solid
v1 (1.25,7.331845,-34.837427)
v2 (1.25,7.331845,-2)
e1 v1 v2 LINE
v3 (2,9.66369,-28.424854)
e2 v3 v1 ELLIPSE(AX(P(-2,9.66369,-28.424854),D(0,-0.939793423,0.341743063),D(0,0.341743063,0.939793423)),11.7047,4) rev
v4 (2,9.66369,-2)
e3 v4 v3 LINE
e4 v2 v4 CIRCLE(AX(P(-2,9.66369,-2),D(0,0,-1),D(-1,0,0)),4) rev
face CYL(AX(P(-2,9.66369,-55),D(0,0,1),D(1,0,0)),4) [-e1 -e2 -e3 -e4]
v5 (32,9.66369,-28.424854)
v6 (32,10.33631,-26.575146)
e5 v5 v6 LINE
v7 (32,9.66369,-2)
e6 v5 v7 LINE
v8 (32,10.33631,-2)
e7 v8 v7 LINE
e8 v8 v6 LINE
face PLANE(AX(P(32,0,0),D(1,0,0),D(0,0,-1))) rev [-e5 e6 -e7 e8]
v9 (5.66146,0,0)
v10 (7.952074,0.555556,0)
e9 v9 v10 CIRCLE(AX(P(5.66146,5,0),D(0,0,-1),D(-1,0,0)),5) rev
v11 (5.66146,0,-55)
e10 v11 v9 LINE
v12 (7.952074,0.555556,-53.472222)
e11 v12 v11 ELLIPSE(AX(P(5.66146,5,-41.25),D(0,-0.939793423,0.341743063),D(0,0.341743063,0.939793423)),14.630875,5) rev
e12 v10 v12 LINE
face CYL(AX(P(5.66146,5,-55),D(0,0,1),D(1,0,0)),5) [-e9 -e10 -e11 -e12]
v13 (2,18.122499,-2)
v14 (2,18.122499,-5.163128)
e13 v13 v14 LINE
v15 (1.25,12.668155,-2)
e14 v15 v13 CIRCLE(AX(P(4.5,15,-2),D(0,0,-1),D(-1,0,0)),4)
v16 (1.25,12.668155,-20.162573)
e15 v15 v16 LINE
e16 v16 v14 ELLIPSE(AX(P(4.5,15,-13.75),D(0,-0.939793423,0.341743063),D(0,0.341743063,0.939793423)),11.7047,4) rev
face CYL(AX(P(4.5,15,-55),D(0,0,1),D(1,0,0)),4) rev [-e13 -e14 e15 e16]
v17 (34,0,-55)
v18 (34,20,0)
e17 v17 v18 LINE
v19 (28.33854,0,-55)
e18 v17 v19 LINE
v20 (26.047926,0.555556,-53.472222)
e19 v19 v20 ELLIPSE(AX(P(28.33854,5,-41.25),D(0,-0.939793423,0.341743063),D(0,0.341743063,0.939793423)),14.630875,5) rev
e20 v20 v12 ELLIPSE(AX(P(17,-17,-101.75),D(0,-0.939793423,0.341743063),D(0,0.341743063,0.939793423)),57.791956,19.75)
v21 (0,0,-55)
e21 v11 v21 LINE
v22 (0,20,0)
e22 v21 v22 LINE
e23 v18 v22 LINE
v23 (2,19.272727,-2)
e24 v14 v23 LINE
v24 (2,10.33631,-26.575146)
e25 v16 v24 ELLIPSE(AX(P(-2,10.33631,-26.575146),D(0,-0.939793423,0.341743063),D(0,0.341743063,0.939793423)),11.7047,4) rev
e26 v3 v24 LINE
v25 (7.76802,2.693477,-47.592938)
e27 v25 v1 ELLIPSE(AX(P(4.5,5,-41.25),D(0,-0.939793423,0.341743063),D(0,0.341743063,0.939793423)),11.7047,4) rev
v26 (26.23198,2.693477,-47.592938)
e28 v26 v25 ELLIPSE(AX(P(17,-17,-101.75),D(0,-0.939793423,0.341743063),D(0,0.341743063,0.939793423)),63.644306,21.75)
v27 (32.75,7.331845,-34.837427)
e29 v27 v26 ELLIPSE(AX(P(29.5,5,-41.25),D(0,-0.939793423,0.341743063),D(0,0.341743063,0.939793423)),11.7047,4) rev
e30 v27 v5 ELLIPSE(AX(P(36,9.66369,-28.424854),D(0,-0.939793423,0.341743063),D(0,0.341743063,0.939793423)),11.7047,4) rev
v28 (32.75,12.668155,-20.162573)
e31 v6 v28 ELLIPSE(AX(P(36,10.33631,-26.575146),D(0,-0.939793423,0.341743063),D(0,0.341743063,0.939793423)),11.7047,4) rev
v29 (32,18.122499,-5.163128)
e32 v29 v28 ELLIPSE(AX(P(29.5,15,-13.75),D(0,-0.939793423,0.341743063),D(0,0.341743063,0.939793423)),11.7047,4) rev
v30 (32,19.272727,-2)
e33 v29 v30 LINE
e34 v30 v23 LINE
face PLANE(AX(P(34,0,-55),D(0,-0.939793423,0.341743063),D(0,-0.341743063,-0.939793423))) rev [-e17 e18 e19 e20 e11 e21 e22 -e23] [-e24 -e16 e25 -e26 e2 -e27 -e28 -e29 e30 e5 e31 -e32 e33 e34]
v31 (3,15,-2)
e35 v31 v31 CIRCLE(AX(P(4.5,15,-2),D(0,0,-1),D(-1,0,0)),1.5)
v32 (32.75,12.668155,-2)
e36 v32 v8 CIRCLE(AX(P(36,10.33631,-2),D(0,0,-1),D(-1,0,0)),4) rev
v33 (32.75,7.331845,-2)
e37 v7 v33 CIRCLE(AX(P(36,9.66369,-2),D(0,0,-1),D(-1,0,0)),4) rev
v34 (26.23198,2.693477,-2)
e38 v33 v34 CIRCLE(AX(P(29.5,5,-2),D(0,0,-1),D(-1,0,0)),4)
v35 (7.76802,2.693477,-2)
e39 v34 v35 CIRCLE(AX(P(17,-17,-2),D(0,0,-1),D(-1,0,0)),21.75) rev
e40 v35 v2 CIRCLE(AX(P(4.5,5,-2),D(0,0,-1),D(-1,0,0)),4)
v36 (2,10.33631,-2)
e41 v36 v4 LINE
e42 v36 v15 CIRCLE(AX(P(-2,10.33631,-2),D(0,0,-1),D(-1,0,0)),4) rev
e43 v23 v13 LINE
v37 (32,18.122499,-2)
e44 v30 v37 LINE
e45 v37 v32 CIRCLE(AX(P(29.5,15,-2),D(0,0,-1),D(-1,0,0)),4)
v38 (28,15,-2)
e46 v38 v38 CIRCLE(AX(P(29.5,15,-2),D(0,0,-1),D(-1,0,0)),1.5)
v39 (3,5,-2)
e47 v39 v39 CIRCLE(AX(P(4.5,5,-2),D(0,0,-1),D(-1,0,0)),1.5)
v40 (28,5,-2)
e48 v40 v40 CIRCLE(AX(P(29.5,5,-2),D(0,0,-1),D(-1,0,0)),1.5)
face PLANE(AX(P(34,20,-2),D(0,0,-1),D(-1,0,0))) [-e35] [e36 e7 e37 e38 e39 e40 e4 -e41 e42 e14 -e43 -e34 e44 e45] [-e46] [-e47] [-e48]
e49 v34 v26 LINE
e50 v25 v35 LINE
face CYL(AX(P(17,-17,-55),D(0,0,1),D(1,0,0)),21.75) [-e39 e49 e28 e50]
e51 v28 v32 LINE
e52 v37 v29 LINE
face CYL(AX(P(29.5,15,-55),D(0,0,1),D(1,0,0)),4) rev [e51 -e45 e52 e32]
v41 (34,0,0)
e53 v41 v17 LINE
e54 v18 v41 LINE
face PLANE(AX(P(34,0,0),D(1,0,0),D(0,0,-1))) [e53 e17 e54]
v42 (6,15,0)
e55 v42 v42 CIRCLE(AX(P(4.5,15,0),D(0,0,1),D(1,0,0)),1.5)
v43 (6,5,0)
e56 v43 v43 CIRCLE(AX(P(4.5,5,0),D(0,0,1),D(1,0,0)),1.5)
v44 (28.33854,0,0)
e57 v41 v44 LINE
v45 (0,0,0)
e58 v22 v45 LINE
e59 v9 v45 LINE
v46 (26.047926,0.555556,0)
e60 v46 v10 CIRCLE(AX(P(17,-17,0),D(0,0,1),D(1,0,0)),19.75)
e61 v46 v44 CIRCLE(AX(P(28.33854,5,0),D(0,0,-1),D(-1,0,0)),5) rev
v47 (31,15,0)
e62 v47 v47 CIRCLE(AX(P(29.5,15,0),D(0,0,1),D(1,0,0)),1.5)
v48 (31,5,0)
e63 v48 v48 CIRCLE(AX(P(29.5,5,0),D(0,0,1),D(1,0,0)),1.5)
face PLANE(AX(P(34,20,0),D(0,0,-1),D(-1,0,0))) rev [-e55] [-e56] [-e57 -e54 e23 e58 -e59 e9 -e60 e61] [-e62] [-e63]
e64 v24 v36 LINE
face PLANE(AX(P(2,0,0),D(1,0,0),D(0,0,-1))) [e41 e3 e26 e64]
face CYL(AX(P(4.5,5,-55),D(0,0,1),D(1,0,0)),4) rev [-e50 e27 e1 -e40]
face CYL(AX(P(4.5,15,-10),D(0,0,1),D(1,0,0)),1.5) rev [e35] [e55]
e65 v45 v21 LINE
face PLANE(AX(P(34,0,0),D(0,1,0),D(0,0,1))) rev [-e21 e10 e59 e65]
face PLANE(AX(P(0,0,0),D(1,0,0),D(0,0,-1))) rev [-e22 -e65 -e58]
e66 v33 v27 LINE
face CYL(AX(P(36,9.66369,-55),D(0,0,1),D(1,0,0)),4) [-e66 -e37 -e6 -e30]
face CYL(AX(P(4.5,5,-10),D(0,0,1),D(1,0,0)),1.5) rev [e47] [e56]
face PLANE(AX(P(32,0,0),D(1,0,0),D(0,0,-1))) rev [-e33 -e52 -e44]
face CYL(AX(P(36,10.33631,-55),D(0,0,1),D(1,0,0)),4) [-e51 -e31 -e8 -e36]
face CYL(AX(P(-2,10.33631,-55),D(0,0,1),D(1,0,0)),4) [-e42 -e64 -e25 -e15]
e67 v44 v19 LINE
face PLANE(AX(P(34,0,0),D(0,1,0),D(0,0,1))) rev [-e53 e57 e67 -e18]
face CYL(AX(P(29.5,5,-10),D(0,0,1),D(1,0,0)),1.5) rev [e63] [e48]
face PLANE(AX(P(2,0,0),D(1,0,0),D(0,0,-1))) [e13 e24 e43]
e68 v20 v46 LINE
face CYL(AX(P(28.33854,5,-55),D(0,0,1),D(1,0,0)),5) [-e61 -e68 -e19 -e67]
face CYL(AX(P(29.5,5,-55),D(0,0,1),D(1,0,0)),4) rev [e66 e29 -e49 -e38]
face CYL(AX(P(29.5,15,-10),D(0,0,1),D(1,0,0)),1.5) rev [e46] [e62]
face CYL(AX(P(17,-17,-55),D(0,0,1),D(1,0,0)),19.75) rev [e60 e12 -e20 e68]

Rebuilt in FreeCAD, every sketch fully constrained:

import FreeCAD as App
import Part
import Sketcher

V = App.Vector


def edges_at(feature, points):
    """Names of the edges that pass closest to the given points."""
    edges = feature.Shape.Edges
    near = lambda p: min(range(len(edges)), key=lambda i: edges[i].distToShape(Part.Vertex(*p))[0])
    return sorted({f"Edge{near(p) + 1}" for p in points})


def faces_at(feature, points):
    """Names of the faces that lie closest to the given points."""
    faces = feature.Shape.Faces
    near = lambda p: min(range(len(faces)), key=lambda i: faces[i].distToShape(Part.Vertex(*p))[0])
    return sorted({f"Face{near(p) + 1}" for p in points})


def add_polygon(sketch, points):
    """Adds a closed chain of lines whose ends are joined by coincident constraints."""
    first, n = sketch.GeometryCount, len(points)
    for a, b in zip(points, points[1:] + points[:1]):
        sketch.addGeometry(Part.LineSegment(App.Vector(*a, 0), App.Vector(*b, 0)), False)
    for i in range(n):
        sketch.addConstraint(Sketcher.Constraint("Coincident", first + i, 2, first + (i + 1) % n, 1))

doc = App.newDocument("Part")
body = doc.addObject("PartDesign::Body", "Body")

# Sketch on YZ plane
sketch1 = body.newObject("Sketcher::SketchObject", "Sketch")
sketch1.AttachmentSupport = (doc.getObject("YZ_Plane"), [""])
sketch1.MapMode = "FlatFace"
add_polygon(sketch1, [(0, 0), (0, -55), (20, 0)])  # lines 0-2
sketch1.addConstraint(Sketcher.Constraint("Vertical", 0))
sketch1.addConstraint(Sketcher.Constraint("Horizontal", 2))
sketch1.addConstraint(Sketcher.Constraint("Coincident", 2, 2, -1, 1))
sketch1.addConstraint(Sketcher.Constraint("DistanceX", 2, 2, 2, 1, 20.0))
sketch1.addConstraint(Sketcher.Constraint("DistanceY", 0, 2, 0, 1, 55.0))
pad1 = body.newObject("PartDesign::Pad", "Pad")
pad1.Profile = sketch1
pad1.Length = 34

# Sketch on XY plane
sketch2 = body.newObject("Sketcher::SketchObject", "Sketch001")
sketch2.AttachmentSupport = (doc.getObject("XY_Plane"), [""])
sketch2.MapMode = "FlatFace"
sketch2.addGeometry(Part.Circle(V(17, -17, 0), V(0, 0, 1), 19.75), False)
sketch2.addConstraint(Sketcher.Constraint("Diameter", 0, 39.5))
sketch2.addConstraint(Sketcher.Constraint("DistanceX", -1, 1, 0, 3, 17.0))
sketch2.addConstraint(Sketcher.Constraint("DistanceY", 0, 3, -1, 1, 17.0))
pocket1 = body.newObject("PartDesign::Pocket", "Pocket")
pocket1.Profile = sketch2
pocket1.Type = "ThroughAll"
doc.recompute()

thickness = body.newObject("PartDesign::Thickness", "Thickness")
thickness.Base = (pocket1, faces_at(pocket1, [(17, 10, -27.5)]))
thickness.Value = 2
thickness.Reversed = True
thickness.Join = "Intersection"

# Sketch on XY plane
sketch3 = body.newObject("Sketcher::SketchObject", "Sketch002")
sketch3.AttachmentSupport = (doc.getObject("XY_Plane"), [""])
sketch3.MapMode = "FlatFace"
sketch3.addGeometry(Part.Circle(V(4.5, 15, 0), V(0, 0, 1), 1.5), False)
sketch3.addGeometry(Part.Circle(V(29.5, 15, 0), V(0, 0, 1), 1.5), False)
sketch3.addGeometry(Part.Circle(V(29.5, 5, 0), V(0, 0, 1), 1.5), False)
sketch3.addGeometry(Part.Circle(V(4.5, 5, 0), V(0, 0, 1), 1.5), False)
sketch3.addConstraint(Sketcher.Constraint("Equal", 0, 1))
sketch3.addConstraint(Sketcher.Constraint("Equal", 1, 2))
sketch3.addConstraint(Sketcher.Constraint("Equal", 2, 3))
sketch3.addConstraint(Sketcher.Constraint("Horizontal", 0, 3, 1, 3))
sketch3.addConstraint(Sketcher.Constraint("Horizontal", 2, 3, 3, 3))
sketch3.addConstraint(Sketcher.Constraint("Vertical", 1, 3, 2, 3))
sketch3.addConstraint(Sketcher.Constraint("Vertical", 0, 3, 3, 3))
sketch3.addConstraint(Sketcher.Constraint("Diameter", 0, 3.0))
sketch3.addConstraint(Sketcher.Constraint("DistanceY", -1, 1, 0, 3, 15.0))
sketch3.addConstraint(Sketcher.Constraint("DistanceY", -1, 1, 2, 3, 5.0))
sketch3.addConstraint(Sketcher.Constraint("DistanceX", 0, 3, 1, 3, 25.0))
sketch3.addConstraint(Sketcher.Constraint("DistanceX", -1, 1, 0, 3, 4.5))
pocket2 = body.newObject("PartDesign::Pocket", "Pocket001")
pocket2.Profile = sketch3
pocket2.Length = 10
doc.recompute()

fillet = body.newObject("PartDesign::Fillet", "Fillet")
fillet.Base = (pocket2, edges_at(pocket2, [(27.053, 0, -27.5), (6.947, 0, -27.5)]))
fillet.Radius = 5
doc.recompute()

fillet2 = body.newObject("PartDesign::Fillet", "Fillet001")
fillet2.Base = (fillet, edges_at(fillet, [(6.414, 2, -25.75), (27.586, 2, -25.75)]))
fillet2.Radius = 5

# Sketch on XY plane
sketch4 = body.newObject("Sketcher::SketchObject", "Sketch003")
sketch4.AttachmentSupport = (doc.getObject("XY_Plane"), [""])
sketch4.MapMode = "FlatFace"
sketch4.AttachmentOffset = App.Placement(V(0, 0, -2), App.Rotation())
sketch4.addGeometry(Part.Circle(V(29.5, 15, 0), V(0, 0, 1), 4), False)
sketch4.addGeometry(Part.Circle(V(4.5, 15, 0), V(0, 0, 1), 4), False)
sketch4.addGeometry(Part.Circle(V(4.5, 5, 0), V(0, 0, 1), 4), False)
sketch4.addGeometry(Part.Circle(V(29.5, 5, 0), V(0, 0, 1), 4), False)
sketch4.addConstraint(Sketcher.Constraint("Equal", 0, 1))
sketch4.addConstraint(Sketcher.Constraint("Equal", 1, 2))
sketch4.addConstraint(Sketcher.Constraint("Equal", 2, 3))
sketch4.addConstraint(Sketcher.Constraint("Horizontal", 0, 3, 1, 3))
sketch4.addConstraint(Sketcher.Constraint("Horizontal", 2, 3, 3, 3))
sketch4.addConstraint(Sketcher.Constraint("Vertical", 1, 3, 2, 3))
sketch4.addConstraint(Sketcher.Constraint("Vertical", 0, 3, 3, 3))
sketch4.addConstraint(Sketcher.Constraint("Diameter", 0, 8.0))
sketch4.addConstraint(Sketcher.Constraint("DistanceY", -1, 1, 0, 3, 15.0))
sketch4.addConstraint(Sketcher.Constraint("DistanceY", -1, 1, 2, 3, 5.0))
sketch4.addConstraint(Sketcher.Constraint("DistanceX", 1, 3, 0, 3, 25.0))
sketch4.addConstraint(Sketcher.Constraint("DistanceX", -1, 1, 0, 3, 29.5))
pocket3 = body.newObject("PartDesign::Pocket", "Pocket002")
pocket3.Profile = sketch4
pocket3.Type = "ThroughAll"
doc.recompute()

fillet3 = body.newObject("PartDesign::Fillet", "Fillet002")
fillet3.Base = (pocket3, edges_at(pocket3, [
    (2, 8.122, -17.332),
    (2, 11.878, -12.168),
    (32, 8.122, -17.332),
    (32, 11.878, -12.168),
]))
fillet3.Radius = 4

doc.recompute()
